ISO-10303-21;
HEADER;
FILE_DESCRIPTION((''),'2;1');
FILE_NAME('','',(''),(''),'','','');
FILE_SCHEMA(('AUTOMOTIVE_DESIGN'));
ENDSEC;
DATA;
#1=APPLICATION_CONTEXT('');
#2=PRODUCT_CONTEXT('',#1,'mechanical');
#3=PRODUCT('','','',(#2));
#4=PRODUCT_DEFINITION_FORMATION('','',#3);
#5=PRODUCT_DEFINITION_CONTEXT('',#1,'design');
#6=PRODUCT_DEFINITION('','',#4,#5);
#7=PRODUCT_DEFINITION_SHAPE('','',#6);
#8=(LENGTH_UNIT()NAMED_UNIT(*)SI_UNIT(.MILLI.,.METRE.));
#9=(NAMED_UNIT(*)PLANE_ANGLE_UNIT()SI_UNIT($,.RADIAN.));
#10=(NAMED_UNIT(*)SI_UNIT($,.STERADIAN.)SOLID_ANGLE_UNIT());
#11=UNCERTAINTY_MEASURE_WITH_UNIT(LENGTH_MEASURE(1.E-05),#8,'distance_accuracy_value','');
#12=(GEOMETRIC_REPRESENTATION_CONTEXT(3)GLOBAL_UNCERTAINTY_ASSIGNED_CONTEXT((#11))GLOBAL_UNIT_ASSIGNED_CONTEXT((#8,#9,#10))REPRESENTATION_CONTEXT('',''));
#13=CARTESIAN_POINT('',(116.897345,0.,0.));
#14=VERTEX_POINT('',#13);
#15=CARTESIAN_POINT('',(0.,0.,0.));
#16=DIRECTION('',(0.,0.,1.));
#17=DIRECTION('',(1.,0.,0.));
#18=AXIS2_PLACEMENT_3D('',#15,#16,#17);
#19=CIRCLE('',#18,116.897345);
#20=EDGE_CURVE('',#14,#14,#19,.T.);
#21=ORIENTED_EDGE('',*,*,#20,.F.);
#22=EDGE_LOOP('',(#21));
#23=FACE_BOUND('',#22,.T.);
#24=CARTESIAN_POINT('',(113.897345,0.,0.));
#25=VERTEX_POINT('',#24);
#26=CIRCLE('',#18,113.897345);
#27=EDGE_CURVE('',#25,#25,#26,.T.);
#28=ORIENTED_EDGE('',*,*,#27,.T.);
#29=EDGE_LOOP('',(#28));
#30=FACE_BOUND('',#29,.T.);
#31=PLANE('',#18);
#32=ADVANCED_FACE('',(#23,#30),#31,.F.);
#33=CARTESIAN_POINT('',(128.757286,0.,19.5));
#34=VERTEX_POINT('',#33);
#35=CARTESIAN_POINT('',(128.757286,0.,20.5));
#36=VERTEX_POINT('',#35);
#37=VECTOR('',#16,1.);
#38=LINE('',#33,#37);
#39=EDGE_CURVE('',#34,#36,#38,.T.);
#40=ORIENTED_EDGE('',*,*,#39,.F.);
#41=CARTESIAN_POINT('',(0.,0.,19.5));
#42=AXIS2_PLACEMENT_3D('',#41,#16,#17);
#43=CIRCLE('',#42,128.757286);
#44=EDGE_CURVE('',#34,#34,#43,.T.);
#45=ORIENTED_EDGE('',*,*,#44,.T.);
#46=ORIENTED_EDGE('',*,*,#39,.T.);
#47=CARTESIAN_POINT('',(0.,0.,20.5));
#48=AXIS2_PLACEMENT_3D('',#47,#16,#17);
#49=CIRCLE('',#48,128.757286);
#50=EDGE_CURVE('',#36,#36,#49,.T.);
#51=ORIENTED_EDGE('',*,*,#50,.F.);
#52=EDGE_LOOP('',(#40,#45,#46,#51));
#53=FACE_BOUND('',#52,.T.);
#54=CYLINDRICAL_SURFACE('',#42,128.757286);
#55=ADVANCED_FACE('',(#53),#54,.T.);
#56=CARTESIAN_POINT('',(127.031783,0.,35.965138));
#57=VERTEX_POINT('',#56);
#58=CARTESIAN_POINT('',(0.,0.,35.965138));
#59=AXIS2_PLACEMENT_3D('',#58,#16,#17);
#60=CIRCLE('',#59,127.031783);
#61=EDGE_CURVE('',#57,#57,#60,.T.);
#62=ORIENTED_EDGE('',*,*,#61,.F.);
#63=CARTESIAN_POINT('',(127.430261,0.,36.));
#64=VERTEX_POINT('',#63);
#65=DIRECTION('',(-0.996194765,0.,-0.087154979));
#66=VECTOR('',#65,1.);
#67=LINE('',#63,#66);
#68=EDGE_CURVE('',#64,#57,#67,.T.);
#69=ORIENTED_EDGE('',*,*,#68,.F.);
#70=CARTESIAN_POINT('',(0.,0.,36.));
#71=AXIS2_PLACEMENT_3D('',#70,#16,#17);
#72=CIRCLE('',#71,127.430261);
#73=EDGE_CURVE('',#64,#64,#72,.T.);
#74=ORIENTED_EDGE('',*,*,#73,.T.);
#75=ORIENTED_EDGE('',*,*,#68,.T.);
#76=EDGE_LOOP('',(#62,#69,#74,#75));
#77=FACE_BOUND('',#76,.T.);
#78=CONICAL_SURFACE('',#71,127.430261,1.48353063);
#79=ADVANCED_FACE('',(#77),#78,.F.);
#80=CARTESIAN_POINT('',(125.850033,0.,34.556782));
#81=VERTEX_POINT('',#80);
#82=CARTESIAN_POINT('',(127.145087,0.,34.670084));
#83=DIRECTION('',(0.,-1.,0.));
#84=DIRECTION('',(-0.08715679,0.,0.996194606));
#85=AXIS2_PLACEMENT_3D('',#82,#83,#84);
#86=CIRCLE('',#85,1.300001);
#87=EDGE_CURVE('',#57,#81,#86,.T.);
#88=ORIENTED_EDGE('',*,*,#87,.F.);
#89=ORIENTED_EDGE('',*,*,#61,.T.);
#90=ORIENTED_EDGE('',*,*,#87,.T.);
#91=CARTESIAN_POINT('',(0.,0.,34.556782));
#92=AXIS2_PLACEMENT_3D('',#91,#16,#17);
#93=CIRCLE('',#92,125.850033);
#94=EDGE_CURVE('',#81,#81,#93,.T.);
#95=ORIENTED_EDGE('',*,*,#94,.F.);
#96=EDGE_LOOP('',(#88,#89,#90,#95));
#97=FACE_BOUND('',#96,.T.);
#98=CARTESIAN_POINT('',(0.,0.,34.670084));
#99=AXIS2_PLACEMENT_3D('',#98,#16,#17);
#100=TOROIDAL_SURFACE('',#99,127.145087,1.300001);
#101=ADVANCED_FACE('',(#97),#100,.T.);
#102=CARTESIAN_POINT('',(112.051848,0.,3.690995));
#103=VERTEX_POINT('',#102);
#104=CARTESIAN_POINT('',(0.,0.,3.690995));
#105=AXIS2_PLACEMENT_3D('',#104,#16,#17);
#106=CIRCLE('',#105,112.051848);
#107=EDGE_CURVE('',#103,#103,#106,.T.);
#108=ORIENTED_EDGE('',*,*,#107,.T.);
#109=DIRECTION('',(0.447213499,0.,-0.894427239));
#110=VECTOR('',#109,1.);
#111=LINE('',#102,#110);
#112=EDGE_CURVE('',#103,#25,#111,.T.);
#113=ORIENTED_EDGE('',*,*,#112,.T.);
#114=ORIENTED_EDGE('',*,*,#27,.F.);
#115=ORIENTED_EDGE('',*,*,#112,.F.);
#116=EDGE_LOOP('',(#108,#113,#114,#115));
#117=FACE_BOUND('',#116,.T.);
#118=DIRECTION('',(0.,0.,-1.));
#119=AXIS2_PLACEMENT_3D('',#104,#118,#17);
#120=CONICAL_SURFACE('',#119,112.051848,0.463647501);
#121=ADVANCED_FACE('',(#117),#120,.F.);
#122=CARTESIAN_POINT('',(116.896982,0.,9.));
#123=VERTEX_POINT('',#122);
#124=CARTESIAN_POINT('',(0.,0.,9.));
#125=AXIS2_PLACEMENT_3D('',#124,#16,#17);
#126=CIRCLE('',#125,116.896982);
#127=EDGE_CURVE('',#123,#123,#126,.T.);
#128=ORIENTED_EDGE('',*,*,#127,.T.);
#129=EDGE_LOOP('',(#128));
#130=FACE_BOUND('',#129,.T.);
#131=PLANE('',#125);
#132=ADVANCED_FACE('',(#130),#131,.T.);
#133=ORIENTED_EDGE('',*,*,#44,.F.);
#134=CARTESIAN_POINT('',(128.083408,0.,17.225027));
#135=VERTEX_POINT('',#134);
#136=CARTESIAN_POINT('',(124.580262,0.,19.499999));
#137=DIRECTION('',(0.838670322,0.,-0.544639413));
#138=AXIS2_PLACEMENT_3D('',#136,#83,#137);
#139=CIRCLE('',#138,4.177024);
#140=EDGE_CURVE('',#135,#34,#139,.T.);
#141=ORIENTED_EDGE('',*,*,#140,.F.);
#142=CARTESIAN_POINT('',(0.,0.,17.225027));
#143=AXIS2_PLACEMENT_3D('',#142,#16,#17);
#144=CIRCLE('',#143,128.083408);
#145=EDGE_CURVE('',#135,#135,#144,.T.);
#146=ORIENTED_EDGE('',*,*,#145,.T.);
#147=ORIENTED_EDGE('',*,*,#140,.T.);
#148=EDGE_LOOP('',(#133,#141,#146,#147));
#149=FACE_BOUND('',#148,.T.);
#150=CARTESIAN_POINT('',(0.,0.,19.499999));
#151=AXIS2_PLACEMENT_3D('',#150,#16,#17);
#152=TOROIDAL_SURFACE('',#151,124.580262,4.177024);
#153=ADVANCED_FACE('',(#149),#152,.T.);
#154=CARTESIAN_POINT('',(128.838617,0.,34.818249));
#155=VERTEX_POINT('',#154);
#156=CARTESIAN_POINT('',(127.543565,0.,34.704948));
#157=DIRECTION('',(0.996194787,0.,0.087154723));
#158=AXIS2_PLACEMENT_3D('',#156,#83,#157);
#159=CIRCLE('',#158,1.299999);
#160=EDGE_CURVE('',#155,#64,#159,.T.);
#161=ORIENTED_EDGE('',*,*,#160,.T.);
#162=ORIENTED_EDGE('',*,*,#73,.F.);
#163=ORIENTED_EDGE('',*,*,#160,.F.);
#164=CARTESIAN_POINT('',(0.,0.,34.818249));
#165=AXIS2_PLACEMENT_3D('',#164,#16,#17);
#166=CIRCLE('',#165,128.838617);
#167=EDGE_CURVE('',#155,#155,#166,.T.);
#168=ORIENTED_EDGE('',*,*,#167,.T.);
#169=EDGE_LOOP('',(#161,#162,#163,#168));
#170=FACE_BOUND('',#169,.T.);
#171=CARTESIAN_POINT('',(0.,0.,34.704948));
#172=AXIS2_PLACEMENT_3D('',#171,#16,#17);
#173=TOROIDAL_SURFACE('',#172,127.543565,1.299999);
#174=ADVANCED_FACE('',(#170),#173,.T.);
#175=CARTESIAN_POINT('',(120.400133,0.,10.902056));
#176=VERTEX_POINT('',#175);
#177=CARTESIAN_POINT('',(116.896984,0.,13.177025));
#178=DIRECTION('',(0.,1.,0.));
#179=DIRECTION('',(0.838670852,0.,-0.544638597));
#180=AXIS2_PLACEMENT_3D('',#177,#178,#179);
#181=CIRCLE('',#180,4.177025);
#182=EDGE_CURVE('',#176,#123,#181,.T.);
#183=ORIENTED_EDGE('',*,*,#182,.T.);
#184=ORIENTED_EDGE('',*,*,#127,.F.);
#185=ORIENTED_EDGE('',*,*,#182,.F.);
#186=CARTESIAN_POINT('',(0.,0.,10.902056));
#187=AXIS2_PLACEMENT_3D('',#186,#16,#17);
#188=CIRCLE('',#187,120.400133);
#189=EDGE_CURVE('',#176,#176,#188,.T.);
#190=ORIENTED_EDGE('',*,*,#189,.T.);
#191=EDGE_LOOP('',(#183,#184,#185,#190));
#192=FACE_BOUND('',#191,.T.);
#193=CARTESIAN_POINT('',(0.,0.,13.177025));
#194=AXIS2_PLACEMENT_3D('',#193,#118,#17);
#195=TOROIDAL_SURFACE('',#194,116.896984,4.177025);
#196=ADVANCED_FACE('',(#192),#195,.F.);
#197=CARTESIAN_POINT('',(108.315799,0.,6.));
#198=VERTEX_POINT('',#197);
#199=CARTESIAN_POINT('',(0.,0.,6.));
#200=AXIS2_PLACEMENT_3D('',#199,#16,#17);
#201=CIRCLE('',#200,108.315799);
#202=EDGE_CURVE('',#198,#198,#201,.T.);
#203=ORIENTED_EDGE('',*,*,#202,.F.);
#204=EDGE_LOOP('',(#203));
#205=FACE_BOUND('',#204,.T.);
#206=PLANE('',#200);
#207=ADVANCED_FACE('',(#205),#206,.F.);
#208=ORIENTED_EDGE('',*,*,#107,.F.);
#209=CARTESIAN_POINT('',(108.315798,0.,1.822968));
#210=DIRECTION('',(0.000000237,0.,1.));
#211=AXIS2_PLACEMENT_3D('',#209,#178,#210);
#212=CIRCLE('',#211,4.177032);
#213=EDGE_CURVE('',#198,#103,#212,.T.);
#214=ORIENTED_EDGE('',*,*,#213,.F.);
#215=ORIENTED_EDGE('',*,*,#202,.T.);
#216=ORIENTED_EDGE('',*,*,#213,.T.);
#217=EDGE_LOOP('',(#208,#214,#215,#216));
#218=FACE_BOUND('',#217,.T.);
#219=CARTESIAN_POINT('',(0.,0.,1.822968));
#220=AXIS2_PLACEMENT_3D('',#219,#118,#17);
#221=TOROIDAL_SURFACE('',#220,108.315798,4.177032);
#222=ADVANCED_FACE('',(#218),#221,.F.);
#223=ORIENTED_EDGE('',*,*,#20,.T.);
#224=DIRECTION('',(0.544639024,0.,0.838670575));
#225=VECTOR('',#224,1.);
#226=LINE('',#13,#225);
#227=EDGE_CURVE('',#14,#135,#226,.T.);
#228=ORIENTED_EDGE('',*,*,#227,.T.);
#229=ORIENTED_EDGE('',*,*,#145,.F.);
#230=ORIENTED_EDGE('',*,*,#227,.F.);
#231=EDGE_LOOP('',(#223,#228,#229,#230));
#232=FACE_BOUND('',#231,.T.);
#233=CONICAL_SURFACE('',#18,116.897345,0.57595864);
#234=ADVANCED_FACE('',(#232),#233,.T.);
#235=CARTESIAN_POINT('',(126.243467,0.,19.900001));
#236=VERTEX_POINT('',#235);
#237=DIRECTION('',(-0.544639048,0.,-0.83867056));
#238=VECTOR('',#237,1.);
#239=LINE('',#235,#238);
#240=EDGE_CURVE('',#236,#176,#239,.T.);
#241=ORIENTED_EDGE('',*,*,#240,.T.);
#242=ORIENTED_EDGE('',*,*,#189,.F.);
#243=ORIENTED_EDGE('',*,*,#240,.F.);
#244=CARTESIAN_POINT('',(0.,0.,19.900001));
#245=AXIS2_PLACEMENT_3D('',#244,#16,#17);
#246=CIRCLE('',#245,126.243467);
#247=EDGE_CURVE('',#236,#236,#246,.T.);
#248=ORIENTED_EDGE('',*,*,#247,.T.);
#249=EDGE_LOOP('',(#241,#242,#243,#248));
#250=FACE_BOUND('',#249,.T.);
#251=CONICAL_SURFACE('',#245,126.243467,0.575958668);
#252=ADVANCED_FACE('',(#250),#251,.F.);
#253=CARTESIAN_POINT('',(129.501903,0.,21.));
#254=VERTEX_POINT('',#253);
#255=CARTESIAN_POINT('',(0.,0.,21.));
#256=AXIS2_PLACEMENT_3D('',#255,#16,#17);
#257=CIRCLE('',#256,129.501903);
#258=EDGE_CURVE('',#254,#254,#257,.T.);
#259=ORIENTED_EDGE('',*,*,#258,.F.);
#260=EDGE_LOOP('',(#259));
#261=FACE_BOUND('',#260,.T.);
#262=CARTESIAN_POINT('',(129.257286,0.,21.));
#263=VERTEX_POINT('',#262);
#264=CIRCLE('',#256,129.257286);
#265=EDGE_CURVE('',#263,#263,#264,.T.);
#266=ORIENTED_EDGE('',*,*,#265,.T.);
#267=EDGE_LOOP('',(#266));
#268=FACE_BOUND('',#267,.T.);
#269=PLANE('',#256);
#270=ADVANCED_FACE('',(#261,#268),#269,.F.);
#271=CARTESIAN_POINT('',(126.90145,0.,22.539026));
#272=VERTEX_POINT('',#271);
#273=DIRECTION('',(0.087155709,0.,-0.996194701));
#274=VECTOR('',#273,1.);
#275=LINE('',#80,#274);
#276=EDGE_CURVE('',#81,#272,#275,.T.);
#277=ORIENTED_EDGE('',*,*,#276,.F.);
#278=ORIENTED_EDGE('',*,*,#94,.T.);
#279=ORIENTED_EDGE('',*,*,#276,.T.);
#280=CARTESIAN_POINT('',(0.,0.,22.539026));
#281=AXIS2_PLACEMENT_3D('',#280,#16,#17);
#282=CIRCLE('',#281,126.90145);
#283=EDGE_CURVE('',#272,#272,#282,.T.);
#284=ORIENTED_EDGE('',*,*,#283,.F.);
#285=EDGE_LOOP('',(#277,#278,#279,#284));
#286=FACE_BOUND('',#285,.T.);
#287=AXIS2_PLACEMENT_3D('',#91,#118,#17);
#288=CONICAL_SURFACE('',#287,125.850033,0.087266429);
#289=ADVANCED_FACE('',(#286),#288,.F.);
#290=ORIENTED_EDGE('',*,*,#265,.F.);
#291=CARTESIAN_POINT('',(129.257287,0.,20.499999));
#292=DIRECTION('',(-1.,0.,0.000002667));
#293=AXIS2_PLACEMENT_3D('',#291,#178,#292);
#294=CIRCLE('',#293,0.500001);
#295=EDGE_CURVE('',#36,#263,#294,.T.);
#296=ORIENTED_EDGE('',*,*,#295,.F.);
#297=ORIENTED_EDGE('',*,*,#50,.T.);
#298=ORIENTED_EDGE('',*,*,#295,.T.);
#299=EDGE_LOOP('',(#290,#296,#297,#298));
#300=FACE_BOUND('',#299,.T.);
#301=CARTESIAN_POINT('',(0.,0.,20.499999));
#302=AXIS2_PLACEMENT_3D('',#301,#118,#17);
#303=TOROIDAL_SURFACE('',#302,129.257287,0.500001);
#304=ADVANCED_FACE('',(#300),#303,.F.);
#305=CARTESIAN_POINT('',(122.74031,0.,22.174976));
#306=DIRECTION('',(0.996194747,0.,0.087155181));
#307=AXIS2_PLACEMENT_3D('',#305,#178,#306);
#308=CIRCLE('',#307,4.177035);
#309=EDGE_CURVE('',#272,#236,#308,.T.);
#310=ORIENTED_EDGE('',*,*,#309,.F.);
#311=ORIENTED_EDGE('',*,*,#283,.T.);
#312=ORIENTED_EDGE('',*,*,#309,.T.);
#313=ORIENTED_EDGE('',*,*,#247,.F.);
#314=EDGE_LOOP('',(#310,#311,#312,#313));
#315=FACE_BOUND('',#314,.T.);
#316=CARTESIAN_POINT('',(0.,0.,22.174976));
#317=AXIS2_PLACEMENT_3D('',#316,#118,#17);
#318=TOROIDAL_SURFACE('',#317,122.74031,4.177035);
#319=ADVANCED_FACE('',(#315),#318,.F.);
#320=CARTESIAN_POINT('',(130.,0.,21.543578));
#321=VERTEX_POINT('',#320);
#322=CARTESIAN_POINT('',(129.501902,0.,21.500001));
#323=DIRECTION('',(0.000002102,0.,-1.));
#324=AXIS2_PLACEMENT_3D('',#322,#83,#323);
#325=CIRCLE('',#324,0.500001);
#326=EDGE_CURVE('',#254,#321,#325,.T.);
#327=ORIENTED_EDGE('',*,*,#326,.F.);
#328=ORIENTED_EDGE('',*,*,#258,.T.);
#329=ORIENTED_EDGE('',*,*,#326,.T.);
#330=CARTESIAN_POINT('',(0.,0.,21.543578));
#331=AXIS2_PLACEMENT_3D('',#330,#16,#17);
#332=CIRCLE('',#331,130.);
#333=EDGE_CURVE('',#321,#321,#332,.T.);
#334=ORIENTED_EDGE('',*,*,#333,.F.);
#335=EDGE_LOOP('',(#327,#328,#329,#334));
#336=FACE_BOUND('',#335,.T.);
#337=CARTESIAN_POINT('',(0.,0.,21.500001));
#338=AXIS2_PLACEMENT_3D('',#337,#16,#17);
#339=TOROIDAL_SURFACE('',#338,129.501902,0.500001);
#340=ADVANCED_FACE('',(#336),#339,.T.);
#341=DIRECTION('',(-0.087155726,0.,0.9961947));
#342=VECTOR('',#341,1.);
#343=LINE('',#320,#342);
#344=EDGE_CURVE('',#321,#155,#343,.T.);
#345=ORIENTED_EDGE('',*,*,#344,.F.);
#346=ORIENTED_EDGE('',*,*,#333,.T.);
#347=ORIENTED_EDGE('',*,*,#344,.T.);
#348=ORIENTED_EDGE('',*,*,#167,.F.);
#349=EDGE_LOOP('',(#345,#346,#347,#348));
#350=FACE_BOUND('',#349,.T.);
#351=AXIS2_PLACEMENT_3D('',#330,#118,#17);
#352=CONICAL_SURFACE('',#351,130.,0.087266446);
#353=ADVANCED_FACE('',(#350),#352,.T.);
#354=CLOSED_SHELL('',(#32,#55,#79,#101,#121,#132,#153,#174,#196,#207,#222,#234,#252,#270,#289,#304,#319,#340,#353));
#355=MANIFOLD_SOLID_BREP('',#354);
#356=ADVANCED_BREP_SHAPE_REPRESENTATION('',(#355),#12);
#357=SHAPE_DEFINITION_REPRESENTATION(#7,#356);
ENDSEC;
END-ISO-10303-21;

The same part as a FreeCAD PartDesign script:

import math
import FreeCAD as App
import Part
import Sketcher
Q = App.Units.Quantity

doc = App.newDocument("Part")
body = doc.addObject("PartDesign::Body", "Body")

# Sketch on XZ plane
sketch1 = doc.addObject("Sketcher::SketchObject", "Sketch")
body.addObject(sketch1)
sketch1.AttachmentSupport = (doc.XZ_Plane, [""])
sketch1.MapMode = "FlatFace"
sketch1.addGeometry([
    Part.LineSegment(App.Vector(0, 9, 0), App.Vector(0, 6, 0)),  # 0
    Part.LineSegment(App.Vector(0, 6, 0), App.Vector(108.315799, 6, 0)),  # 1
    Part.ArcOfCircle(Part.Circle(App.Vector(108.315798, 1.822968, 0), App.Vector(0, 0, 1), 4.177032), math.radians(26.565071), math.radians(89.999986)),  # 2
    Part.LineSegment(App.Vector(112.051848, 3.690995, 0), App.Vector(113.897345, 0, 0)),  # 3
    Part.LineSegment(App.Vector(113.897345, 0, 0), App.Vector(116.897345, 0, 0)),  # 4
    Part.LineSegment(App.Vector(116.897345, 0, 0), App.Vector(128.083408, 17.225027, 0)),  # 5
    Part.ArcOfCircle(Part.Circle(App.Vector(124.580262, 19.499999, 0), App.Vector(0, 0, 1), 4.177024), math.radians(-33.000026), math.radians(0.000012)),  # 6
    Part.LineSegment(App.Vector(128.757286, 19.5, 0), App.Vector(128.757286, 20.5, 0)),  # 7
    Part.ArcOfCircle(Part.Circle(App.Vector(129.257287, 20.499999, 0), App.Vector(0, 0, 1), 0.500001), math.radians(90.000153), math.radians(179.999847)),  # 8
    Part.LineSegment(App.Vector(129.257286, 21, 0), App.Vector(129.501903, 21, 0)),  # 9
    Part.ArcOfCircle(Part.Circle(App.Vector(129.501902, 21.500001, 0), App.Vector(0, 0, 1), 0.500001), math.radians(-89.99988), math.radians(4.999933)),  # 10
    Part.LineSegment(App.Vector(130, 21.543578, 0), App.Vector(128.838617, 34.818249, 0)),  # 11
    Part.ArcOfCircle(Part.Circle(App.Vector(127.543565, 34.704948, 0), App.Vector(0, 0, 1), 1.299999), math.radians(4.999941), math.radians(95.000059)),  # 12
    Part.LineSegment(App.Vector(127.430261, 36, 0), App.Vector(127.031783, 35.965138, 0)),  # 13
    Part.ArcOfCircle(Part.Circle(App.Vector(127.145087, 34.670084, 0), App.Vector(0, 0, 1), 1.300001), math.radians(95.00006), math.radians(184.999988)),  # 14
    Part.LineSegment(App.Vector(125.850033, 34.556782, 0), App.Vector(126.90145, 22.539026, 0)),  # 15
    Part.ArcOfCircle(Part.Circle(App.Vector(122.74031, 22.174976, 0), App.Vector(0, 0, 1), 4.177035), math.radians(-32.999975), math.radians(4.999968)),  # 16
    Part.LineSegment(App.Vector(126.243467, 19.900001, 0), App.Vector(120.400133, 10.902056, 0)),  # 17
    Part.ArcOfCircle(Part.Circle(App.Vector(116.896984, 13.177025, 0), App.Vector(0, 0, 1), 4.177025), math.radians(-90.000025), math.radians(-32.99997)),  # 18
    Part.LineSegment(App.Vector(116.896982, 9, 0), App.Vector(0, 9, 0)),  # 19
], False)
sketch1.addConstraint([
    Sketcher.Constraint("Coincident", 0, 2, 1, 1),
    Sketcher.Constraint("Tangent", 1, 2, 2, 2),
    Sketcher.Constraint("Tangent", 2, 1, 3, 1),
    Sketcher.Constraint("Coincident", 3, 2, 4, 1),
    Sketcher.Constraint("Coincident", 4, 2, 5, 1),
    Sketcher.Constraint("Tangent", 5, 2, 6, 1),
    Sketcher.Constraint("Tangent", 6, 2, 7, 1),
    Sketcher.Constraint("Coincident", 7, 2, 8, 2),
    Sketcher.Constraint("Coincident", 8, 1, 9, 1),
    Sketcher.Constraint("Coincident", 9, 2, 10, 1),
    Sketcher.Constraint("Tangent", 10, 2, 11, 1),
    Sketcher.Constraint("Tangent", 11, 2, 12, 1),
    Sketcher.Constraint("Tangent", 12, 2, 13, 1),
    Sketcher.Constraint("Tangent", 13, 2, 14, 1),
    Sketcher.Constraint("Tangent", 14, 2, 15, 1),
    Sketcher.Constraint("Tangent", 15, 2, 16, 2),
    Sketcher.Constraint("Tangent", 16, 1, 17, 1),
    Sketcher.Constraint("Tangent", 17, 2, 18, 2),
    Sketcher.Constraint("Tangent", 18, 1, 19, 1),
    Sketcher.Constraint("Coincident", 19, 2, 0, 1),
    Sketcher.Constraint("Vertical", 0),
    Sketcher.Constraint("Horizontal", 1),
    Sketcher.Constraint("Horizontal", 4),
    Sketcher.Constraint("Vertical", 7),
    Sketcher.Constraint("Horizontal", 9),
    Sketcher.Constraint("Horizontal", 19),
    Sketcher.Constraint("Equal", 8, 10),
    Sketcher.Constraint("Equal", 12, 14),
    Sketcher.Constraint("Equal", 6, 18),
    Sketcher.Constraint("PointOnObject", 0, 2, -2),
    Sketcher.Constraint("PointOnObject", 3, 2, -1),
    Sketcher.Constraint("Perpendicular", 11, 13),
    Sketcher.Constraint("Perpendicular", 13, 15),
    Sketcher.Constraint("Parallel", 5, 17),
    Sketcher.Constraint("Horizontal", 8, 3, 7, 2),
    Sketcher.Constraint("Vertical", 10, 3, 9, 2),
    Sketcher.Constraint("Equal", 4, 0),
    Sketcher.Constraint("Radius", 8, Q("0.500001 mm")),
    Sketcher.Constraint("Radius", 12, Q("1.299999 mm")),
    Sketcher.Constraint("DistanceX", 4, 1, 4, 2, Q("3 mm")),
    Sketcher.Constraint("DistanceY", 7, 1, 7, 2, Q("1 mm")),
    Sketcher.Constraint("Angle", 5, Q("57.000001 deg")),
    Sketcher.Constraint("Angle", 11, Q("94.999999 deg")),
    Sketcher.Constraint("DistanceY", -1, 1, 0, 2, Q("6 mm")),
    Sketcher.Constraint("DistanceY", -1, 1, 8, 1, Q("21 mm")),
    Sketcher.Constraint("DistanceX", -1, 1, 10, 2, Q("130 mm")),
    Sketcher.Constraint("DistanceY", -1, 1, 12, 2, Q("36 mm")),
    Sketcher.Constraint("Distance", 13, Q("0.4 mm")),
    Sketcher.Constraint("DistanceY", -1, 1, 16, 1, Q("19.900001 mm")),
    Sketcher.Constraint("DistanceX", 7, 2, 8, 1, Q("0.5 mm")),
    Sketcher.Constraint("Radius", 2, Q("4.177032 mm")),
    Sketcher.Constraint("DistanceX", 1, 1, 1, 2, Q("108.315799 mm")),
    Sketcher.Constraint("Radius", 6, Q("4.177024 mm")),
    Sketcher.Constraint("Radius", 16, Q("4.177035 mm")),
    Sketcher.Constraint("DistanceX", 14, 3, 8, 3, Q("2.1122 mm")),
])
revolution = doc.addObject("PartDesign::Revolution", "Revolution")
body.addObject(revolution)
revolution.Profile = sketch1
revolution.ReferenceAxis = (sketch1, ["V_Axis"])
revolution.Angle = 360

doc.recompute()
